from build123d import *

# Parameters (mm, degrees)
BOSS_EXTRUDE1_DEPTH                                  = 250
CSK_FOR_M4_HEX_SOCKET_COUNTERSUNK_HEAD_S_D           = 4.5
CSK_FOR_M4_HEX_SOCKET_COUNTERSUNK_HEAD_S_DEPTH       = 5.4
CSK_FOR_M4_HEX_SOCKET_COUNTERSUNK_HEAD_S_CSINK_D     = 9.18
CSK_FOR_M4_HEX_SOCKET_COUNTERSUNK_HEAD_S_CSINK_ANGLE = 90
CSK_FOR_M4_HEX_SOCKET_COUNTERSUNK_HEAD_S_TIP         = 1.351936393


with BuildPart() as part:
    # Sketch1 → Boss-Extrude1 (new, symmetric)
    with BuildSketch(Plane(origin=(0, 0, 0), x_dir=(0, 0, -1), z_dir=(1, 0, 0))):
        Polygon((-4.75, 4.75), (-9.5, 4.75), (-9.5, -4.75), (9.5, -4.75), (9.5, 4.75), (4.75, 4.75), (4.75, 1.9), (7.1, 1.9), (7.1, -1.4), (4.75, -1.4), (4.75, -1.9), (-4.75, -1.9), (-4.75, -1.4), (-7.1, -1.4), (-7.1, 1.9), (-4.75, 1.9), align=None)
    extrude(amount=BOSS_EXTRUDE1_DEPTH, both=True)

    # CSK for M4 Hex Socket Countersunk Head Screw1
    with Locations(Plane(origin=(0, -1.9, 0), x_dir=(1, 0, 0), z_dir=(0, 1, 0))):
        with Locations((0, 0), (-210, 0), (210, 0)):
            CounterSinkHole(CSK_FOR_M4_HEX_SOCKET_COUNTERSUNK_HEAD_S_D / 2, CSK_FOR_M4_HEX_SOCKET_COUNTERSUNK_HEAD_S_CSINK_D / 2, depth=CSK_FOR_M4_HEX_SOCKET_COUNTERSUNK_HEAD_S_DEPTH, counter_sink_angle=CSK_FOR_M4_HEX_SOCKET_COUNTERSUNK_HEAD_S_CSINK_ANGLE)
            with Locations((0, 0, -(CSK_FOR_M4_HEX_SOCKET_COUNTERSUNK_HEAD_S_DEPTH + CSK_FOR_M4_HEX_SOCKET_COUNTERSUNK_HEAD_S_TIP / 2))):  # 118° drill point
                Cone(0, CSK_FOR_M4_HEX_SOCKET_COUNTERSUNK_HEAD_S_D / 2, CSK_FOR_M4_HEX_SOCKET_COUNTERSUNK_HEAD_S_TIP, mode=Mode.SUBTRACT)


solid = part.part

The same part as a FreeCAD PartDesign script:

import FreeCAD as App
import Part
import Sketcher
from FreeCAD import Vector


def add_polygon(sketch, points):
    """Adds a closed chain of lines whose ends are joined by coincident constraints."""
    first, n = sketch.GeometryCount, len(points)
    for a, b in zip(points, points[1:] + points[:1]):
        sketch.addGeometry(Part.LineSegment(App.Vector(*a, 0), App.Vector(*b, 0)), False)
    for i in range(n):
        sketch.addConstraint(Sketcher.Constraint("Coincident", first + i, 2, first + (i + 1) % n, 1))

doc = App.newDocument("Part")
body = doc.addObject("PartDesign::Body", "Body")

# Sketch on YZ plane
sketch1 = doc.addObject("Sketcher::SketchObject", "Sketch")
body.addObject(sketch1)
sketch1.AttachmentSupport = (doc.YZ_Plane, [""])
sketch1.MapMode = "FlatFace"
add_polygon(sketch1, [(4.8, 4.8), (4.8, 9.5), (-4.8, 9.5), (-4.8, -9.5), (4.8, -9.5), (4.8, -4.8), (1.9, -4.8), (1.9, -7.1), (-1.4, -7.1), (-1.4, -4.8), (-1.9, -4.8), (-1.9, 4.8), (-1.4, 4.8), (-1.4, 7.1), (1.9, 7.1), (1.9, 4.8)])  # lines 0-15
sketch1.addConstraint(Sketcher.Constraint("Vertical", 0))
sketch1.addConstraint(Sketcher.Constraint("Horizontal", 1))
sketch1.addConstraint(Sketcher.Constraint("Vertical", 2))
sketch1.addConstraint(Sketcher.Constraint("Horizontal", 3))
sketch1.addConstraint(Sketcher.Constraint("Vertical", 4))
sketch1.addConstraint(Sketcher.Constraint("Horizontal", 5))
sketch1.addConstraint(Sketcher.Constraint("Vertical", 6))
sketch1.addConstraint(Sketcher.Constraint("Horizontal", 7))
sketch1.addConstraint(Sketcher.Constraint("Vertical", 8))
sketch1.addConstraint(Sketcher.Constraint("Horizontal", 9))
sketch1.addConstraint(Sketcher.Constraint("Vertical", 10))
sketch1.addConstraint(Sketcher.Constraint("Horizontal", 11))
sketch1.addConstraint(Sketcher.Constraint("Vertical", 12))
sketch1.addConstraint(Sketcher.Constraint("Horizontal", 13))
sketch1.addConstraint(Sketcher.Constraint("Vertical", 14))
sketch1.addConstraint(Sketcher.Constraint("Horizontal", 15))
sketch1.addConstraint(Sketcher.Constraint("Symmetric", 0, 2, 2, 2, -1, 1))
sketch1.addConstraint(Sketcher.Constraint("Symmetric", 5, 2, 10, 2, -1, 1))
sketch1.addConstraint(Sketcher.Constraint("Symmetric", 9, 2, 14, 2, -1, 1))
sketch1.addConstraint(Sketcher.Constraint("Symmetric", 8, 2, 11, 2, -1))
sketch1.addConstraint(Sketcher.Constraint("Vertical", 0, 2, 3, 2))
sketch1.addConstraint(Sketcher.Constraint("Equal", 3, 10))
sketch1.addConstraint(Sketcher.Constraint("Equal", 8, 12))
sketch1.addConstraint(Sketcher.Constraint("DistanceY", 2, 2, 2, 1, 19.0))
sketch1.addConstraint(Sketcher.Constraint("DistanceX", 1, 2, 1, 1, 9.5))
sketch1.addConstraint(Sketcher.Constraint("DistanceX", 7, 2, 7, 1, 3.3))
sketch1.addConstraint(Sketcher.Constraint("DistanceX", 9, 2, 9, 1, 0.5))
sketch1.addConstraint(Sketcher.Constraint("DistanceY", 6, 2, 6, 1, 2.35))
pad1 = doc.addObject("PartDesign::Pad", "Pad")
body.addObject(pad1)
pad1.Profile = sketch1
pad1.Length = 500
pad1.Midplane = True

# Sketch on XZ plane
sketch2 = doc.addObject("Sketcher::SketchObject", "Sketch001")
body.addObject(sketch2)
sketch2.AttachmentSupport = (doc.XZ_Plane, [""])
sketch2.MapMode = "FlatFace"
sketch2.AttachmentOffset = App.Placement(Vector(0, 0, 1.9), App.Rotation())
sketch2.addGeometry(Part.Circle(Vector(0, 0, 0), Vector(0, 0, 1), 2.2), False)
sketch2.addGeometry(Part.Circle(Vector(-210, 0, 0), Vector(0, 0, 1), 2.2), False)
sketch2.addGeometry(Part.Circle(Vector(210, 0, 0), Vector(0, 0, 1), 2.2), False)
sketch2.addConstraint(Sketcher.Constraint("Coincident", 0, 3, -1, 1))
sketch2.addConstraint(Sketcher.Constraint("Equal", 0, 1))
sketch2.addConstraint(Sketcher.Constraint("Equal", 1, 2))
sketch2.addConstraint(Sketcher.Constraint("Symmetric", 1, 3, 2, 3, -1, 1))
sketch2.addConstraint(Sketcher.Constraint("PointOnObject", 1, 3, -1))
sketch2.addConstraint(Sketcher.Constraint("Diameter", 0, 4.5))
sketch2.addConstraint(Sketcher.Constraint("DistanceX", 1, 3, -1, 1, 210.0))
doc.recompute()
hole = doc.addObject("PartDesign::Hole", "Hole")
body.addObject(hole)
hole.Profile = sketch2
hole.ThreadType = "None"
hole.Diameter = 4.5
hole.DepthType = "Dimension"
hole.Depth = 5.4
hole.DrillPoint = "Angled"
hole.DrillPointAngle = 118
hole.HoleCutType = "Countersink"
hole.HoleCutDiameter = 9.18
hole.HoleCutCountersinkAngle = 90
hole.Reversed = True

doc.recompute()
